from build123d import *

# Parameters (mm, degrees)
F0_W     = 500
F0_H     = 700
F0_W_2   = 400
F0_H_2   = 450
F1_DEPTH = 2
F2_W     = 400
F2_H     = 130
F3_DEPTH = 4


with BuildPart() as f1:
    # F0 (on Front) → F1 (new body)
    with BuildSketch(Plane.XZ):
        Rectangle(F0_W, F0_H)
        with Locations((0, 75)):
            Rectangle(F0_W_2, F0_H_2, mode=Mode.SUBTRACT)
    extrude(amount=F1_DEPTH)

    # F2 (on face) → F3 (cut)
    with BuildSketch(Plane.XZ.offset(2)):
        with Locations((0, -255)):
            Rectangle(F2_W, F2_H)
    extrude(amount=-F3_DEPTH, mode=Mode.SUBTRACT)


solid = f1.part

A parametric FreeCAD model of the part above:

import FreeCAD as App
import Part
import Sketcher

V = App.Vector


def add_polygon(sketch, points):
    """Adds a closed chain of lines whose ends are joined by coincident constraints."""
    first, n = sketch.GeometryCount, len(points)
    for a, b in zip(points, points[1:] + points[:1]):
        sketch.addGeometry(Part.LineSegment(App.Vector(*a, 0), App.Vector(*b, 0)), False)
    for i in range(n):
        sketch.addConstraint(Sketcher.Constraint("Coincident", first + i, 2, first + (i + 1) % n, 1))

doc = App.newDocument("Part")
body = doc.addObject("PartDesign::Body", "Body")

# Sketch on XZ plane
sketch1 = body.newObject("Sketcher::SketchObject", "Sketch")
sketch1.AttachmentSupport = (doc.getObject("XZ_Plane"), [""])
sketch1.MapMode = "FlatFace"
add_polygon(sketch1, [(-250, 350), (-250, -350), (250, -350), (250, 350)])  # lines 0-3
add_polygon(sketch1, [(200, -150), (-200, -150), (-200, 300), (200, 300)])  # lines 4-7
sketch1.addConstraint(Sketcher.Constraint("Vertical", 0))
sketch1.addConstraint(Sketcher.Constraint("Horizontal", 1))
sketch1.addConstraint(Sketcher.Constraint("Vertical", 2))
sketch1.addConstraint(Sketcher.Constraint("Horizontal", 3))
sketch1.addConstraint(Sketcher.Constraint("Horizontal", 4))
sketch1.addConstraint(Sketcher.Constraint("Vertical", 5))
sketch1.addConstraint(Sketcher.Constraint("Horizontal", 6))
sketch1.addConstraint(Sketcher.Constraint("Vertical", 7))
sketch1.addConstraint(Sketcher.Constraint("Symmetric", 0, 2, 2, 2, -1, 1))
sketch1.addConstraint(Sketcher.Constraint("DistanceX", 1, 1, 1, 2, 500.0))
sketch1.addConstraint(Sketcher.Constraint("DistanceX", 4, 2, 4, 1, 400.0))
sketch1.addConstraint(Sketcher.Constraint("DistanceY", 0, 2, 0, 1, 700.0))
sketch1.addConstraint(Sketcher.Constraint("DistanceY", 5, 1, 5, 2, 450.0))
sketch1.addConstraint(Sketcher.Constraint("DistanceX", 4, 2, -1, 1, 200.0))
sketch1.addConstraint(Sketcher.Constraint("DistanceY", 4, 2, -1, 1, 150.0))
pad1 = body.newObject("PartDesign::Pad", "Pad")
pad1.Profile = sketch1
pad1.Length = 2

# Sketch on XZ plane
sketch2 = body.newObject("Sketcher::SketchObject", "Sketch001")
sketch2.AttachmentSupport = (doc.getObject("XZ_Plane"), [""])
sketch2.MapMode = "FlatFace"
sketch2.AttachmentOffset = App.Placement(V(0, 0, 2), App.Rotation())
add_polygon(sketch2, [(-200, -190), (-200, -320), (200, -320), (200, -190)])  # lines 0-3
sketch2.addConstraint(Sketcher.Constraint("Vertical", 0))
sketch2.addConstraint(Sketcher.Constraint("Horizontal", 1))
sketch2.addConstraint(Sketcher.Constraint("Vertical", 2))
sketch2.addConstraint(Sketcher.Constraint("Horizontal", 3))
sketch2.addConstraint(Sketcher.Constraint("DistanceX", 1, 1, 1, 2, 400.0))
sketch2.addConstraint(Sketcher.Constraint("DistanceY", 0, 2, 0, 1, 130.0))
sketch2.addConstraint(Sketcher.Constraint("DistanceX", 0, 2, -1, 1, 200.0))
sketch2.addConstraint(Sketcher.Constraint("DistanceY", 0, 2, -1, 1, 320.0))
pocket1 = body.newObject("PartDesign::Pocket", "Pocket")
pocket1.Profile = sketch2
pocket1.Length = 4

doc.recompute()
